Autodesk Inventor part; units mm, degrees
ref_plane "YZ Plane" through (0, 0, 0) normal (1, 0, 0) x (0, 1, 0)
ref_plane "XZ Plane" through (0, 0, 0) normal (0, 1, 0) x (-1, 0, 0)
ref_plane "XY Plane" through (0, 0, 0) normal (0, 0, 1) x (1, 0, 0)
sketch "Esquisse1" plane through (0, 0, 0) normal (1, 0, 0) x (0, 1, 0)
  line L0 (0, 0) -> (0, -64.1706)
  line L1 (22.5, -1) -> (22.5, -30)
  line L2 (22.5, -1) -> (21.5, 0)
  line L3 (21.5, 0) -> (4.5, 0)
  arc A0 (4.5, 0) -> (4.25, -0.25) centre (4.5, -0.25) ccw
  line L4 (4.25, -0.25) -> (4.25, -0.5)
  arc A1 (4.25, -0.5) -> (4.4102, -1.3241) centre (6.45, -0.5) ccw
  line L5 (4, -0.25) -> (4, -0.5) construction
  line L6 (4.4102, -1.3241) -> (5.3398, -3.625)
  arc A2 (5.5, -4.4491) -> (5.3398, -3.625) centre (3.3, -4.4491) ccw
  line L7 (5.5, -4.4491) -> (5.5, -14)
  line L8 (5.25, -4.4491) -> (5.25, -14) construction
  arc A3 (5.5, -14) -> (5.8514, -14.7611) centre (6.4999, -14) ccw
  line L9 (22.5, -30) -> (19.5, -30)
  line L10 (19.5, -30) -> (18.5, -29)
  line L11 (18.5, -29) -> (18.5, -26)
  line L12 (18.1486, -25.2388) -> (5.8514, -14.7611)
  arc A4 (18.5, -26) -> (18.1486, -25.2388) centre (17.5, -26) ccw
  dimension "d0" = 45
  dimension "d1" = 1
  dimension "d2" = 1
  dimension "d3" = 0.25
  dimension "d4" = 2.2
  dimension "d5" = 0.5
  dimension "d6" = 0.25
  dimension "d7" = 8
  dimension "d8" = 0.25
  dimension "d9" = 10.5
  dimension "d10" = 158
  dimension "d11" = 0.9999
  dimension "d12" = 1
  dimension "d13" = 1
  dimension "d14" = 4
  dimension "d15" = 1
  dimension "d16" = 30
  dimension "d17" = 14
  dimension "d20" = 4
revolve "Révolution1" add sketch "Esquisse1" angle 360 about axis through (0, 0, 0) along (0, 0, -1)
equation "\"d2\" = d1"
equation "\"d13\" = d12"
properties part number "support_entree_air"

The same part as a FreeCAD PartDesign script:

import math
import FreeCAD as App
import Part
import Sketcher
Q = App.Units.Quantity

doc = App.newDocument("Part")
body = doc.addObject("PartDesign::Body", "Body")

sketch1 = body.newObject("Sketcher::SketchObject", "Sketch")
sketch1.AttachmentSupport = (doc.getObject("YZ_Plane"), [""])
sketch1.MapMode = "FlatFace"
sketch1.addGeometry([
    Part.LineSegment(App.Vector(22.5, -30, 0), App.Vector(22.5, -1, 0)),
    Part.LineSegment(App.Vector(22.5, -1, 0), App.Vector(21.5, 0, 0)),
    Part.LineSegment(App.Vector(21.5, 0, 0), App.Vector(4.5, 0, 0)),
    Part.ArcOfCircle(Part.Circle(App.Vector(4.5, -0.25, 0), App.Vector(0, 0, 1), 0.25), math.radians(90), math.radians(180)),
    Part.LineSegment(App.Vector(4.25, -0.25, 0), App.Vector(4.25, -0.5, 0)),
    Part.ArcOfCircle(Part.Circle(App.Vector(6.45, -0.5, 0), App.Vector(0, 0, 1), 2.2), math.radians(180), math.radians(201.99921)),
    Part.LineSegment(App.Vector(4.4102, -1.3241, 0), App.Vector(5.3398, -3.625, 0)),
    Part.ArcOfCircle(Part.Circle(App.Vector(3.3, -4.4491, 0), App.Vector(0, 0, 1), 2.2), math.radians(0), math.radians(21.99921)),
    Part.LineSegment(App.Vector(5.5, -4.4491, 0), App.Vector(5.5, -14, 0)),
    Part.ArcOfCircle(Part.Circle(App.Vector(6.4999, -14, 0), App.Vector(0, 0, 1), 0.9999), math.radians(180), math.radians(229.567136)),
    Part.LineSegment(App.Vector(5.8514, -14.7611, 0), App.Vector(18.1486, -25.2388, 0)),
    Part.ArcOfCircle(Part.Circle(App.Vector(17.5, -26, 0), App.Vector(0, 0, 1), 1), math.radians(0), math.radians(49.566491)),
    Part.LineSegment(App.Vector(18.5, -26, 0), App.Vector(18.5, -29, 0)),
    Part.LineSegment(App.Vector(18.5, -29, 0), App.Vector(19.5, -30, 0)),
    Part.LineSegment(App.Vector(19.5, -30, 0), App.Vector(22.5, -30, 0)),
], False)
sketch1.addConstraint([
    Sketcher.Constraint("Coincident", 0, 2, 1, 1),
    Sketcher.Constraint("Coincident", 1, 2, 2, 1),
    Sketcher.Constraint("Tangent", 2, 2, 3, 1),
    Sketcher.Constraint("Tangent", 3, 2, 4, 1),
    Sketcher.Constraint("Tangent", 4, 2, 5, 1),
    Sketcher.Constraint("Tangent", 5, 2, 6, 1),
    Sketcher.Constraint("Tangent", 6, 2, 7, 2),
    Sketcher.Constraint("Tangent", 7, 1, 8, 1),
    Sketcher.Constraint("Tangent", 8, 2, 9, 1),
    Sketcher.Constraint("Tangent", 9, 2, 10, 1),
    Sketcher.Constraint("Tangent", 10, 2, 11, 2),
    Sketcher.Constraint("Tangent", 11, 1, 12, 1),
    Sketcher.Constraint("Coincident", 12, 2, 13, 1),
    Sketcher.Constraint("Coincident", 13, 2, 14, 1),
    Sketcher.Constraint("Coincident", 14, 2, 0, 1),
    Sketcher.Constraint("Vertical", 0),
    Sketcher.Constraint("Horizontal", 2),
    Sketcher.Constraint("Vertical", 4),
    Sketcher.Constraint("Vertical", 8),
    Sketcher.Constraint("Vertical", 12),
    Sketcher.Constraint("Horizontal", 14),
    Sketcher.Constraint("Equal", 5, 7),
    Sketcher.Constraint("Equal", 9, 11),
    Sketcher.Constraint("PointOnObject", 1, 2, -1),
    Sketcher.Constraint("Parallel", 1, 13),
    Sketcher.Constraint("Equal", 14, 12),
    Sketcher.Constraint("Equal", 1, 13),
    Sketcher.Constraint("Radius", 9, 1.0),
    Sketcher.Constraint("Radius", 5, 2.2),
    Sketcher.Constraint("Angle", 13, Q("-45 deg")),
    Sketcher.Constraint("Radius", 3, 0.25),
    Sketcher.Constraint("DistanceY", 9, 3, -1, 1, 14.0),
    Sketcher.Constraint("DistanceY", 0, 2, -1, 1, 1.0),
    Sketcher.Constraint("DistanceY", 13, 2, -1, 1, 30.0),
    Sketcher.Constraint("DistanceY", 13, 2, 11, 1, 4.0),
    Sketcher.Constraint("DistanceY", 4, 2, 4, 1, 0.25),
    Sketcher.Constraint("DistanceX", 2, 2, 2, 1, 17.0),
    Sketcher.Constraint("Angle", 6, Q("-68.0005 deg")),
    Sketcher.Constraint("DistanceX", 3, 3, 9, 3, 2.0),
    Sketcher.Constraint("DistanceX", -1, 1, 3, 3, 4.5),
])
revolution = body.newObject("PartDesign::Revolution", "Revolution")
revolution.Profile = sketch1
revolution.ReferenceAxis = (sketch1, ["V_Axis"])
revolution.Angle = 360

doc.recompute()
